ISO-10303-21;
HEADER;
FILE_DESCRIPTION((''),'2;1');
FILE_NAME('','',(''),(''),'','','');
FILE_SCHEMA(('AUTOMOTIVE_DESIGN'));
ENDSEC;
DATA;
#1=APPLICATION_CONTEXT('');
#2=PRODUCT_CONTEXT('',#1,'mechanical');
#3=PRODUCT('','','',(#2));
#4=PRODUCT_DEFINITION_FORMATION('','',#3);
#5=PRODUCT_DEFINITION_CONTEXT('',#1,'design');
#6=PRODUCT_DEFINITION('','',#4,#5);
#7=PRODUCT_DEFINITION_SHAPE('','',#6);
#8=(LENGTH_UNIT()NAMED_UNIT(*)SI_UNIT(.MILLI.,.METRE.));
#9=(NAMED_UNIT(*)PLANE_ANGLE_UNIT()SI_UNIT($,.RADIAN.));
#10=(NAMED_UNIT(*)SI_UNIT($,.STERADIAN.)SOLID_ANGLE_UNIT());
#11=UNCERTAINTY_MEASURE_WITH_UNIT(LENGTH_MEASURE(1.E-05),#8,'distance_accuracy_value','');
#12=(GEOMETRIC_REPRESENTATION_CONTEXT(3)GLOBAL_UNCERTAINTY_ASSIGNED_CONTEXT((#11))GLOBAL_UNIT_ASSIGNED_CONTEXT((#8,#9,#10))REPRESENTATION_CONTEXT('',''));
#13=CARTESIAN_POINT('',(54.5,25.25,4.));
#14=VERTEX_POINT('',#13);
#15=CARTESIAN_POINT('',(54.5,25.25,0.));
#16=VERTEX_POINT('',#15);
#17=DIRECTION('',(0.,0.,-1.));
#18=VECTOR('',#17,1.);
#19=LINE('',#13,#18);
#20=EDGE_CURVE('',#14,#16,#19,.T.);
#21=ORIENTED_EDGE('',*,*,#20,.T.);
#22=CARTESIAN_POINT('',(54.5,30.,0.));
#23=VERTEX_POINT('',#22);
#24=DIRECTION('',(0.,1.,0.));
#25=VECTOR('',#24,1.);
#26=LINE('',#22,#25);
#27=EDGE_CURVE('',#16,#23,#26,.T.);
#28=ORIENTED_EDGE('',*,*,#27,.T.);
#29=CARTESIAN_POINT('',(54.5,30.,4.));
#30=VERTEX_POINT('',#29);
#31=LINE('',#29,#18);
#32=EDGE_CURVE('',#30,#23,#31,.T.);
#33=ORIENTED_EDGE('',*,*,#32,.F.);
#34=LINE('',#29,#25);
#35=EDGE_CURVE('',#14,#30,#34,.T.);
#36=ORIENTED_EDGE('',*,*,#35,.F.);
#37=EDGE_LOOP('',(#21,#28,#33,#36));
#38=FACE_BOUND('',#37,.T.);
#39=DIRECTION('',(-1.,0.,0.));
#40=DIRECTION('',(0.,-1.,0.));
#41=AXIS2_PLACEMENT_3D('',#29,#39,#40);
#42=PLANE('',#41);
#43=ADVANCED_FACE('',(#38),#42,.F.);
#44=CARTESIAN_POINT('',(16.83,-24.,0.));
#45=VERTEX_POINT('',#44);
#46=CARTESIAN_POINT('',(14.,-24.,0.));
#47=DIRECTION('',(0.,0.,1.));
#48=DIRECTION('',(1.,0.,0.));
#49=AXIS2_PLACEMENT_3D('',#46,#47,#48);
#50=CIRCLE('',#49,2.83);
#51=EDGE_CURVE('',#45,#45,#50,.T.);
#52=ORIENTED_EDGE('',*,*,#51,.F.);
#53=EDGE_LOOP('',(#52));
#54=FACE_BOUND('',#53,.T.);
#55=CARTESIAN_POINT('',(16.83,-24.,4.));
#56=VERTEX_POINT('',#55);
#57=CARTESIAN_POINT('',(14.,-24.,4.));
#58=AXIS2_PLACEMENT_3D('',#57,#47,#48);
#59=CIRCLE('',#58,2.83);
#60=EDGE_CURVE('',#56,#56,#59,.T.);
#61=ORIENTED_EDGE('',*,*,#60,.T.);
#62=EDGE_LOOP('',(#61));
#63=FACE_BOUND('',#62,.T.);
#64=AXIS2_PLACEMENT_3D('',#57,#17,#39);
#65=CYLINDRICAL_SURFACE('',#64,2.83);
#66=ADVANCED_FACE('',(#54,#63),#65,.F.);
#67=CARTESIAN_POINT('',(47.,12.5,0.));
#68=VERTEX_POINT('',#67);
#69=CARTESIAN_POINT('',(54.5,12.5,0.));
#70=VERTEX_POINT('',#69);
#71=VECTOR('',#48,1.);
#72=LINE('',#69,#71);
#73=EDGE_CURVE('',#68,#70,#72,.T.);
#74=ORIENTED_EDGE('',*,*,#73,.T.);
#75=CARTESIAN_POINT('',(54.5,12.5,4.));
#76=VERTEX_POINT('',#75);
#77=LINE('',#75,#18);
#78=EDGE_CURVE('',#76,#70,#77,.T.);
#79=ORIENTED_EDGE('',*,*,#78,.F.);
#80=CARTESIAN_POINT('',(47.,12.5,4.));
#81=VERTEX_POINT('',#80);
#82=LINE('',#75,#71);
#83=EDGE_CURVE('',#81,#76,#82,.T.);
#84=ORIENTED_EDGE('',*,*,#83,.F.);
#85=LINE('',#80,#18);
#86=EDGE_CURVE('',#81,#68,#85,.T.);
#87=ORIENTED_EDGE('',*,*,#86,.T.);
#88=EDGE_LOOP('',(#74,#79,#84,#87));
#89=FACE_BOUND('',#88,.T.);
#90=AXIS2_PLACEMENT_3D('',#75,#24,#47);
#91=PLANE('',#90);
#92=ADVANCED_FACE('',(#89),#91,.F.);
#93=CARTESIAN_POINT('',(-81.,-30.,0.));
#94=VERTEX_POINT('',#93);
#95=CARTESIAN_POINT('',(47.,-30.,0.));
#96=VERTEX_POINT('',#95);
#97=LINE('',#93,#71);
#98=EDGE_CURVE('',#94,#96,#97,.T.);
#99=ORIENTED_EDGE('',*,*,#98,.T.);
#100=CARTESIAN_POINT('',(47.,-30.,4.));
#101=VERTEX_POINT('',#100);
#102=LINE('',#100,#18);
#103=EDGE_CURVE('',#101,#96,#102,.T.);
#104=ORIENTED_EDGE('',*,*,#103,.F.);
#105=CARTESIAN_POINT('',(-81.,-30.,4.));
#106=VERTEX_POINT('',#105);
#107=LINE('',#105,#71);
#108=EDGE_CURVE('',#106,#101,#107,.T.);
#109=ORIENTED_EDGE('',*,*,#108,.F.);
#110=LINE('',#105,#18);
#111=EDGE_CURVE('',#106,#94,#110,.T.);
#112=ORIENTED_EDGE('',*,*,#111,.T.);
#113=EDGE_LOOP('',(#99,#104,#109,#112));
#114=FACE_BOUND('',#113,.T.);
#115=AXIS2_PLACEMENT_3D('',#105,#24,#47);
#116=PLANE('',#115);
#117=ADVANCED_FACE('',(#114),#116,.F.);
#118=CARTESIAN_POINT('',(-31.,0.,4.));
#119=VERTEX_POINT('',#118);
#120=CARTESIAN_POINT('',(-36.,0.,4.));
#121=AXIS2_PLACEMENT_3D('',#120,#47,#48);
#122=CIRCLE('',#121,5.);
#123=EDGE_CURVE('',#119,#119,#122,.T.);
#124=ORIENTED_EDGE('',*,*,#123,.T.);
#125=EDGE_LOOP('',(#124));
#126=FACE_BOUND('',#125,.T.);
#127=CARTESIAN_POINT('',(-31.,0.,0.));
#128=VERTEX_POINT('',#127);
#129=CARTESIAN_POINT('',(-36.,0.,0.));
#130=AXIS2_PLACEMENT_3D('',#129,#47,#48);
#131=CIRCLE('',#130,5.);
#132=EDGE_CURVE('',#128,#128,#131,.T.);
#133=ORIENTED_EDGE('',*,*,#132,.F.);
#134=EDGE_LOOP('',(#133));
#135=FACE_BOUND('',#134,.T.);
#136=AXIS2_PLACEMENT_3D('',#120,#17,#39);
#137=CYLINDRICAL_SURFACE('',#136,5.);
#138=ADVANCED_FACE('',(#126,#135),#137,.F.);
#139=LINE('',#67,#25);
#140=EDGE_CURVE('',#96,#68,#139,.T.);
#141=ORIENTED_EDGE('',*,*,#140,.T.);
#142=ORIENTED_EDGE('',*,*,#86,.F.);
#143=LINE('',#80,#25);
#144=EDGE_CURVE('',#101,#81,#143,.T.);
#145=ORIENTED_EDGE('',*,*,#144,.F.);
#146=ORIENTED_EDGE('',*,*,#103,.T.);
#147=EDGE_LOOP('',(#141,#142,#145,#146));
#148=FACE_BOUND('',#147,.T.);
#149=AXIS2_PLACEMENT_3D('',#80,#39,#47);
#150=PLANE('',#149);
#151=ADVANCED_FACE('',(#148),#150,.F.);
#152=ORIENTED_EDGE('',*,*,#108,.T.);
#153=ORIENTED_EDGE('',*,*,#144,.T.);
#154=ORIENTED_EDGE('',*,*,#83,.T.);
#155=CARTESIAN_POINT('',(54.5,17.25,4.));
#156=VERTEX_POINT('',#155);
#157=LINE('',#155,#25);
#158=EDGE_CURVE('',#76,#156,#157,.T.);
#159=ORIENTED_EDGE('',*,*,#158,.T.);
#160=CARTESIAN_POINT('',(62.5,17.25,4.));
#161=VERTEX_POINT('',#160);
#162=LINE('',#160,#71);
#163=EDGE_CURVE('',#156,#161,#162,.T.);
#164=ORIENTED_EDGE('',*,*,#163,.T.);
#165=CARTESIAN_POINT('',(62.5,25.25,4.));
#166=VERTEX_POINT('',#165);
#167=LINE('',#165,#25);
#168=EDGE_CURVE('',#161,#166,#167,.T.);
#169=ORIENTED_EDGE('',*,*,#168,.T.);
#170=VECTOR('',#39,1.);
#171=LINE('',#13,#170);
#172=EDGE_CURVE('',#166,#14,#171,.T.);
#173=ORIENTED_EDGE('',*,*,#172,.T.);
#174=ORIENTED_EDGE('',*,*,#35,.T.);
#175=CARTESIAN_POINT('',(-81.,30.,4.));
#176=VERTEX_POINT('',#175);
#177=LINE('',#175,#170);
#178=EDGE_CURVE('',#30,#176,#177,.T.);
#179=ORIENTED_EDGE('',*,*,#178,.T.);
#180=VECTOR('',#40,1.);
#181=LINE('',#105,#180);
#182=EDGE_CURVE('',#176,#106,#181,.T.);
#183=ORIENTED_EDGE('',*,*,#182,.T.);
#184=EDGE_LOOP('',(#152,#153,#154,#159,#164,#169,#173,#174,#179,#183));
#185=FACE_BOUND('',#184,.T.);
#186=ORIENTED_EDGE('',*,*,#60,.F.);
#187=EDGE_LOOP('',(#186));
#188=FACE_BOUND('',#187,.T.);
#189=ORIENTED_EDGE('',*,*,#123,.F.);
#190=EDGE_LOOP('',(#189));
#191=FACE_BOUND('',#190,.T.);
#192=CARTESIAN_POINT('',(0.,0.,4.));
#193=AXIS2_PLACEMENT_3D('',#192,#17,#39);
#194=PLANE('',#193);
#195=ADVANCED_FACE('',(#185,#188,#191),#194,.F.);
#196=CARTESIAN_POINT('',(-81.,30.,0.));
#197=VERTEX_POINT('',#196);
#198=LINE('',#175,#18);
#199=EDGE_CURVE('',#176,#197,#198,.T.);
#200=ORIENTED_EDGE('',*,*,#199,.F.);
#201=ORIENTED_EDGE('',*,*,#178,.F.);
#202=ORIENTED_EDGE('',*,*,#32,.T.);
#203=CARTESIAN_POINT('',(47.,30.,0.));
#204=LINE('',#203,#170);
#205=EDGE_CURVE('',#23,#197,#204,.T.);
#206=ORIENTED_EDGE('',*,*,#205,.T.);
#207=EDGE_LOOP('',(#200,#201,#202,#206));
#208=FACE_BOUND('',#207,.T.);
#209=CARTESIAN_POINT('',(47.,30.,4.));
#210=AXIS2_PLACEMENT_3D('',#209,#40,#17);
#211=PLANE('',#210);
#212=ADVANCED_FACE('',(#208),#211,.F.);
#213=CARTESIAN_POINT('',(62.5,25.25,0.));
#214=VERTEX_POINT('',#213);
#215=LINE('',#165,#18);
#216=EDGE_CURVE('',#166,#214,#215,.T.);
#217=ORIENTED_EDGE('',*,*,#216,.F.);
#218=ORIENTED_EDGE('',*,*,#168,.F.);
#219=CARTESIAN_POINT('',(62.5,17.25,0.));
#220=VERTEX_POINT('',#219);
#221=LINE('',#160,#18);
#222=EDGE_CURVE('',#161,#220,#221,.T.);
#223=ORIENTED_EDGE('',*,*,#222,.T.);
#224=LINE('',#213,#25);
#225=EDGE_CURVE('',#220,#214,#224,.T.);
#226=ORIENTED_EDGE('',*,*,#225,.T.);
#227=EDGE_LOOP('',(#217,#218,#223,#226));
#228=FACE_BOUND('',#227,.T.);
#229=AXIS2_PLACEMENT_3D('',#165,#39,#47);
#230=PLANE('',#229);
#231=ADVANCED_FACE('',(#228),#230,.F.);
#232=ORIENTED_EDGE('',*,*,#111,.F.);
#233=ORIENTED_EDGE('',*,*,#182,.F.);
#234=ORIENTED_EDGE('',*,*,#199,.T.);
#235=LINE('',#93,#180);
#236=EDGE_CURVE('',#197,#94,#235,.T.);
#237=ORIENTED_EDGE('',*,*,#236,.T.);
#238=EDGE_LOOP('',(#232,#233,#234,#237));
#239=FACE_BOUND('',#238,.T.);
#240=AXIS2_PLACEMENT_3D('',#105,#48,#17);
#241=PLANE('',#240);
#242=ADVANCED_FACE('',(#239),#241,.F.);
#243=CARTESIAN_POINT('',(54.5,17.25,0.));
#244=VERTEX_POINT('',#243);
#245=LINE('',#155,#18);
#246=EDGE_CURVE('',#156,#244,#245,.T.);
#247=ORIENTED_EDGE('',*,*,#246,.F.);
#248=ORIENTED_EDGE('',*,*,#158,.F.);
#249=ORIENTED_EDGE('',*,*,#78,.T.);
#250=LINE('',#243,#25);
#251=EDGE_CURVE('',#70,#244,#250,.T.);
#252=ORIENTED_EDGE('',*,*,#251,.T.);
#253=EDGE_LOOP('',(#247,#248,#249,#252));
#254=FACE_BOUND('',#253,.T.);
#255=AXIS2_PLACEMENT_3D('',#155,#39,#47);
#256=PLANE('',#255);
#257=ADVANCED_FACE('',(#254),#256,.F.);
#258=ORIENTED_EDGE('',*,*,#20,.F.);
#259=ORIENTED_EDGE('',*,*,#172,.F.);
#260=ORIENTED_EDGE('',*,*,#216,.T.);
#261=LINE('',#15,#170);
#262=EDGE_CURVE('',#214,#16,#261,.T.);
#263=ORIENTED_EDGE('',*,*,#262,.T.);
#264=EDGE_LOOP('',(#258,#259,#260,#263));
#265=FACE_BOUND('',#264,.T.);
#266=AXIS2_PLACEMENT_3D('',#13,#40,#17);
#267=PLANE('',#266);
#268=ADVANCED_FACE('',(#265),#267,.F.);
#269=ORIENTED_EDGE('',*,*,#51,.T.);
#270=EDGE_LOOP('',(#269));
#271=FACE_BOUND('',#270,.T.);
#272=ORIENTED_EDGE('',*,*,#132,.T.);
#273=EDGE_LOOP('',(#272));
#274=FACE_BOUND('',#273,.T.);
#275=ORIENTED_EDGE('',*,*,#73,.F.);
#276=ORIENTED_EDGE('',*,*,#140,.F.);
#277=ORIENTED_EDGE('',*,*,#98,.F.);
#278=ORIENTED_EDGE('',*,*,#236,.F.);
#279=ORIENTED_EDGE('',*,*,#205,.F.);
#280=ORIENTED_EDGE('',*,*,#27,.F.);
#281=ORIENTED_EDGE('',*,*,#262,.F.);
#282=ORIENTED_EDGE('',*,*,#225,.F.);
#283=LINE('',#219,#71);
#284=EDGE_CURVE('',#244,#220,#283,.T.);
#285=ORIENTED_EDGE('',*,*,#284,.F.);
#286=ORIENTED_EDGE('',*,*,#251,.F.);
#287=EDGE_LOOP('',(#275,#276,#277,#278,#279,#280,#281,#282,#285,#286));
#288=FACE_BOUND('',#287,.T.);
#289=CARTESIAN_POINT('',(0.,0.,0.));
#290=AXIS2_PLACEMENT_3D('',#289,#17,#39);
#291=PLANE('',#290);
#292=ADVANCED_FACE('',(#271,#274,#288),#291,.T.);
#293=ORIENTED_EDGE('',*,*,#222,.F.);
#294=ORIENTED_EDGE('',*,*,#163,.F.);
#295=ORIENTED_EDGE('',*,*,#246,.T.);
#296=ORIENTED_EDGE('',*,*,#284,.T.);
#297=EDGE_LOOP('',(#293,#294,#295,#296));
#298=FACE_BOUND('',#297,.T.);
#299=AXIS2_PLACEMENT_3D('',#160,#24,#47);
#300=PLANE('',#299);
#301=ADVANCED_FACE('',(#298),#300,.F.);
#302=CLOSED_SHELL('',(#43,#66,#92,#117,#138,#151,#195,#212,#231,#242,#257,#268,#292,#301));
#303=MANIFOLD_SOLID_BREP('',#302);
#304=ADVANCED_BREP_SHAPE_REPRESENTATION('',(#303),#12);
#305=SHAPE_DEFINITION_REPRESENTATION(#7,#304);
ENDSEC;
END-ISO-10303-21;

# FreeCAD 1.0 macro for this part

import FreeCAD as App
import Part
import Sketcher
from FreeCAD import Vector

doc = App.newDocument("Part")
body = doc.addObject("PartDesign::Body", "Body")

# Sketch on XY plane
sketch1 = doc.addObject("Sketcher::SketchObject", "Sketch")
body.addObject(sketch1)
sketch1.AttachmentSupport = (doc.XY_Plane, [""])
sketch1.MapMode = "FlatFace"
sketch1.addGeometry([
    Part.LineSegment(Vector(54.5, 30, 0), Vector(-81, 30, 0)),  # 0
    Part.LineSegment(Vector(-81, 30, 0), Vector(-81, -30, 0)),  # 1
    Part.LineSegment(Vector(-81, -30, 0), Vector(47, -30, 0)),  # 2
    Part.LineSegment(Vector(47, -30, 0), Vector(47, 12.5, 0)),  # 3
    Part.LineSegment(Vector(47, 12.5, 0), Vector(54.5, 12.5, 0)),  # 4
    Part.LineSegment(Vector(54.5, 12.5, 0), Vector(54.5, 17.25, 0)),  # 5
    Part.LineSegment(Vector(54.5, 17.25, 0), Vector(62.5, 17.25, 0)),  # 6
    Part.LineSegment(Vector(62.5, 17.25, 0), Vector(62.5, 25.25, 0)),  # 7
    Part.LineSegment(Vector(62.5, 25.25, 0), Vector(54.5, 25.25, 0)),  # 8
    Part.LineSegment(Vector(54.5, 25.25, 0), Vector(54.5, 30, 0)),  # 9
    Part.Circle(Vector(14, -24, 0), Vector(0, 0, 1), 2.83),  # 10
    Part.Circle(Vector(-36, 0, 0), Vector(0, 0, 1), 5),  # 11
], False)
sketch1.addConstraint([
    Sketcher.Constraint("Coincident", 0, 2, 1, 1),
    Sketcher.Constraint("Coincident", 1, 2, 2, 1),
    Sketcher.Constraint("Coincident", 2, 2, 3, 1),
    Sketcher.Constraint("Coincident", 3, 2, 4, 1),
    Sketcher.Constraint("Coincident", 4, 2, 5, 1),
    Sketcher.Constraint("Coincident", 5, 2, 6, 1),
    Sketcher.Constraint("Coincident", 6, 2, 7, 1),
    Sketcher.Constraint("Coincident", 7, 2, 8, 1),
    Sketcher.Constraint("Coincident", 8, 2, 9, 1),
    Sketcher.Constraint("Coincident", 9, 2, 0, 1),
    Sketcher.Constraint("Horizontal", 0),
    Sketcher.Constraint("Vertical", 1),
    Sketcher.Constraint("Horizontal", 2),
    Sketcher.Constraint("Vertical", 3),
    Sketcher.Constraint("Horizontal", 4),
    Sketcher.Constraint("Vertical", 5),
    Sketcher.Constraint("Horizontal", 6),
    Sketcher.Constraint("Vertical", 7),
    Sketcher.Constraint("Horizontal", 8),
    Sketcher.Constraint("Vertical", 9),
    Sketcher.Constraint("PointOnObject", 11, 3, -1),
    Sketcher.Constraint("Vertical", 5, 2, 8, 2),
    Sketcher.Constraint("Equal", 8, 7),
    Sketcher.Constraint("Equal", 5, 9),
    Sketcher.Constraint("Diameter", 11, 10.0),
    Sketcher.Constraint("Diameter", 10, 5.66),
    Sketcher.Constraint("DistanceX", 2, 1, 2, 2, 128.0),
    Sketcher.Constraint("DistanceX", 6, 1, 6, 2, 8.0),
    Sketcher.Constraint("DistanceY", 1, 2, 1, 1, 60.0),
    Sketcher.Constraint("DistanceX", 0, 2, 0, 1, 135.5),
    Sketcher.Constraint("DistanceY", 3, 1, 3, 2, 42.5),
    Sketcher.Constraint("DistanceX", -1, 1, 10, 3, 14.0),
    Sketcher.Constraint("DistanceY", 10, 3, -1, 1, 24.0),
    Sketcher.Constraint("DistanceX", 11, 3, -1, 1, 36.0),
    Sketcher.Constraint("DistanceX", 0, 2, -1, 1, 81.0),
    Sketcher.Constraint("DistanceY", -1, 1, 0, 2, 30.0),
])
pad1 = doc.addObject("PartDesign::Pad", "Pad")
body.addObject(pad1)
pad1.Profile = sketch1
pad1.Length = 4

doc.recompute()
